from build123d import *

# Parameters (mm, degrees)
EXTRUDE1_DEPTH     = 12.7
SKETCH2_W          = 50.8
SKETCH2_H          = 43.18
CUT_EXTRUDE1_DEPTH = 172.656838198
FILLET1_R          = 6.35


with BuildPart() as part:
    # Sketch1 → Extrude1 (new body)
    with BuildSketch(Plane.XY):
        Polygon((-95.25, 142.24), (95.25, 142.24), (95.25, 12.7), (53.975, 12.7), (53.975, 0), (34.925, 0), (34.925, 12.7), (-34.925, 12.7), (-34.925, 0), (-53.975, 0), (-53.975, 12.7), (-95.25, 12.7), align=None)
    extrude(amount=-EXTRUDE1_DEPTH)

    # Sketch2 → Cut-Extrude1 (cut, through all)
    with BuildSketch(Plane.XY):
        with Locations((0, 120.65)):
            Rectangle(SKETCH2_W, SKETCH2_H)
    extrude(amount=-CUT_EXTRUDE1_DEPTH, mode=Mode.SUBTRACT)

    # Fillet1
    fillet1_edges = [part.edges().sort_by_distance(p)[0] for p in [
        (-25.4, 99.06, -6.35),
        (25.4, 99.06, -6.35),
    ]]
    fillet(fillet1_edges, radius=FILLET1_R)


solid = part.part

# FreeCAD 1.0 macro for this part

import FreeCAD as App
import Part
import Sketcher

V = App.Vector
Q = App.Units.Quantity


def edges_at(feature, points):
    """Names of the edges that pass closest to the given points."""
    edges = feature.Shape.Edges
    near = lambda p: min(range(len(edges)), key=lambda i: edges[i].distToShape(Part.Vertex(*p))[0])
    return sorted({f"Edge{near(p) + 1}" for p in points})


def add_polygon(sketch, points):
    """Adds a closed chain of lines whose ends are joined by coincident constraints."""
    first, n = sketch.GeometryCount, len(points)
    for a, b in zip(points, points[1:] + points[:1]):
        sketch.addGeometry(Part.LineSegment(App.Vector(*a, 0), App.Vector(*b, 0)), False)
    for i in range(n):
        sketch.addConstraint(Sketcher.Constraint("Coincident", first + i, 2, first + (i + 1) % n, 1))

doc = App.newDocument("Part")
body = doc.addObject("PartDesign::Body", "Body")

# Sketch on XY plane
sketch1 = body.newObject("Sketcher::SketchObject", "Sketch")
sketch1.AttachmentSupport = (doc.getObject("XY_Plane"), [""])
sketch1.MapMode = "FlatFace"
add_polygon(sketch1, [(95, 142), (-95, 142), (-95, 13), (-54, 13), (-54, 0), (-35, 0), (-35, 13), (35, 13), (35, 0), (54, 0), (54, 13), (95, 13)])  # lines 0-11
sketch1.addConstraint([
    Sketcher.Constraint("Horizontal", 0),
    Sketcher.Constraint("Vertical", 1),
    Sketcher.Constraint("Horizontal", 2),
    Sketcher.Constraint("Vertical", 3),
    Sketcher.Constraint("Horizontal", 4),
    Sketcher.Constraint("Vertical", 5),
    Sketcher.Constraint("Horizontal", 6),
    Sketcher.Constraint("Vertical", 7),
    Sketcher.Constraint("Horizontal", 8),
    Sketcher.Constraint("Vertical", 9),
    Sketcher.Constraint("Horizontal", 10),
    Sketcher.Constraint("Vertical", 11),
    Sketcher.Constraint("Symmetric", 4, 2, 7, 2, -1, 1),
    Sketcher.Constraint("Symmetric", 3, 2, 8, 2, -2),
    Sketcher.Constraint("Symmetric", 1, 2, 10, 2, -2),
    Sketcher.Constraint("Horizontal", 2, 2, 5, 2),
    Sketcher.Constraint("DistanceX", 0, 2, 0, 1, Q("7.5 in")),
    Sketcher.Constraint("DistanceY", 1, 2, 1, 1, Q("5.1 in")),
    Sketcher.Constraint("DistanceY", 3, 2, 3, 1, Q("0.5 in")),
    Sketcher.Constraint("DistanceX", 4, 1, 4, 2, Q("0.75 in")),
    Sketcher.Constraint("DistanceX", 6, 1, 6, 2, Q("2.75 in")),
])
pad1 = body.newObject("PartDesign::Pad", "Pad")
pad1.Profile = sketch1
pad1.Length = Q("0.5 in")
pad1.Reversed = True

# Sketch on XY plane
sketch2 = body.newObject("Sketcher::SketchObject", "Sketch001")
sketch2.AttachmentSupport = (doc.getObject("XY_Plane"), [""])
sketch2.MapMode = "FlatFace"
add_polygon(sketch2, [(-25, 142), (-25, 99), (25, 99), (25, 142)])  # lines 0-3
sketch2.addConstraint([
    Sketcher.Constraint("Vertical", 0),
    Sketcher.Constraint("Horizontal", 1),
    Sketcher.Constraint("Vertical", 2),
    Sketcher.Constraint("Horizontal", 3),
    Sketcher.Constraint("DistanceX", 1, 1, 1, 2, Q("2 in")),
    Sketcher.Constraint("DistanceY", 0, 2, 0, 1, Q("1.7 in")),
    Sketcher.Constraint("DistanceX", 0, 2, -1, 1, Q("1 in")),
    Sketcher.Constraint("DistanceY", -1, 1, 0, 2, Q("3.9 in")),
])
pocket1 = body.newObject("PartDesign::Pocket", "Pocket")
pocket1.Profile = sketch2
pocket1.Type = "ThroughAll"
doc.recompute()

fillet = body.newObject("PartDesign::Fillet", "Fillet")
fillet.Base = (pocket1, edges_at(pocket1, [(-25.4, 99.06, -6.35), (25.4, 99.06, -6.35)]))
fillet.Radius = Q("0.25 in")

doc.recompute()
